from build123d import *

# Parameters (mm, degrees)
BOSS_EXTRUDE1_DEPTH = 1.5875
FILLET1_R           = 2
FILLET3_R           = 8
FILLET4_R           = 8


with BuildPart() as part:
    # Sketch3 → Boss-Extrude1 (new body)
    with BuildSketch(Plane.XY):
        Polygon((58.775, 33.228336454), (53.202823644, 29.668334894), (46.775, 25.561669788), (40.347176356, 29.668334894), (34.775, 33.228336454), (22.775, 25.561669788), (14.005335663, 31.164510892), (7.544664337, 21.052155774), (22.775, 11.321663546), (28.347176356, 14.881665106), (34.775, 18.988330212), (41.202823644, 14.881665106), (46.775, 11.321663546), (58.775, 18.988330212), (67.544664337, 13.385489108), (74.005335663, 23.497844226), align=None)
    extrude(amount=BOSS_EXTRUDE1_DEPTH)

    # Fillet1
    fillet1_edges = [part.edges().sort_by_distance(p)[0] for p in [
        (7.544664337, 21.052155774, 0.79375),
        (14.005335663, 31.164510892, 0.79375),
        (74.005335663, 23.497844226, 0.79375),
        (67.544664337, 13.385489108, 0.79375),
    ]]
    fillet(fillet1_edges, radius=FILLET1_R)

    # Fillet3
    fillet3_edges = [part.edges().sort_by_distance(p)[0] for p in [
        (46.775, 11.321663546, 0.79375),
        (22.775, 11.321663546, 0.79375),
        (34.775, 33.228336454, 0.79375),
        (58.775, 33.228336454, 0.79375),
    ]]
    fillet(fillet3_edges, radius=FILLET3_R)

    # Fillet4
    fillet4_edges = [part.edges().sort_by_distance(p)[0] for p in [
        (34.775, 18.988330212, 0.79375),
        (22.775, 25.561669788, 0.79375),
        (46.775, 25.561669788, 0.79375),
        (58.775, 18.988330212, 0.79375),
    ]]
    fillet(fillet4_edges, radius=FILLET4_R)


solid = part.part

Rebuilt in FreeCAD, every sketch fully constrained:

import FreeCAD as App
import Part
import Sketcher


def edges_at(feature, points):
    """Names of the edges that pass closest to the given points."""
    edges = feature.Shape.Edges
    near = lambda p: min(range(len(edges)), key=lambda i: edges[i].distToShape(Part.Vertex(*p))[0])
    return sorted({f"Edge{near(p) + 1}" for p in points})


def add_polygon(sketch, points):
    """Adds a closed chain of lines whose ends are joined by coincident constraints."""
    first, n = sketch.GeometryCount, len(points)
    for a, b in zip(points, points[1:] + points[:1]):
        sketch.addGeometry(Part.LineSegment(App.Vector(*a, 0), App.Vector(*b, 0)), False)
    for i in range(n):
        sketch.addConstraint(Sketcher.Constraint("Coincident", first + i, 2, first + (i + 1) % n, 1))

doc = App.newDocument("Part")
body = doc.addObject("PartDesign::Body", "Body")

sketch1 = doc.addObject("Sketcher::SketchObject", "Sketch")
body.addObject(sketch1)
sketch1.AttachmentSupport = (doc.XY_Plane, [""])
sketch1.MapMode = "FlatFace"
add_polygon(sketch1, [(59, 33), (53, 30), (47, 26), (40, 30), (35, 33), (23, 26), (14, 31), (8, 21), (23, 11), (28, 15), (35, 19), (41, 15), (47, 11), (59, 19), (68, 13), (74, 23)])
sketch1.addConstraint(Sketcher.Constraint("Parallel", 0, 1))
sketch1.addConstraint(Sketcher.Constraint("Parallel", 2, 3))
sketch1.addConstraint(Sketcher.Constraint("Parallel", 1, 4))
sketch1.addConstraint(Sketcher.Constraint("Parallel", 3, 5))
sketch1.addConstraint(Sketcher.Constraint("Perpendicular", 5, 6))
sketch1.addConstraint(Sketcher.Constraint("Perpendicular", 6, 7))
sketch1.addConstraint(Sketcher.Constraint("Parallel", 4, 8))
sketch1.addConstraint(Sketcher.Constraint("Parallel", 8, 9))
sketch1.addConstraint(Sketcher.Constraint("Parallel", 7, 10))
sketch1.addConstraint(Sketcher.Constraint("Parallel", 10, 11))
sketch1.addConstraint(Sketcher.Constraint("Parallel", 9, 12))
sketch1.addConstraint(Sketcher.Constraint("Parallel", 11, 13))
sketch1.addConstraint(Sketcher.Constraint("Perpendicular", 13, 14))
sketch1.addConstraint(Sketcher.Constraint("Perpendicular", 14, 15))
sketch1.addConstraint(Sketcher.Constraint("Horizontal", 0, 2, 2, 2))
sketch1.addConstraint(Sketcher.Constraint("Horizontal", 1, 2, 4, 2))
sketch1.addConstraint(Sketcher.Constraint("Horizontal", 8, 2, 10, 2))
sketch1.addConstraint(Sketcher.Constraint("Horizontal", 7, 2, 11, 2))
sketch1.addConstraint(Sketcher.Constraint("Horizontal", 9, 2, 12, 2))
sketch1.addConstraint(Sketcher.Constraint("Horizontal", 3, 2, 15, 2))
sketch1.addConstraint(Sketcher.Constraint("Vertical", 4, 2, 7, 2))
sketch1.addConstraint(Sketcher.Constraint("Vertical", 3, 2, 9, 2))
sketch1.addConstraint(Sketcher.Constraint("Equal", 1, 2))
sketch1.addConstraint(Sketcher.Constraint("Equal", 3, 8))
sketch1.addConstraint(Sketcher.Constraint("Equal", 5, 13))
sketch1.addConstraint(Sketcher.Constraint("Distance", 6, 12.0))
sketch1.addConstraint(Sketcher.Constraint("DistanceX", 3, 2, 1, 2, 12.0))
sketch1.addConstraint(Sketcher.Constraint("DistanceY", 2, 2, 3, 2, 3.560002))
sketch1.addConstraint(Sketcher.Constraint("DistanceX", -1, 1, 1, 2, 46.775))
sketch1.addConstraint(Sketcher.Constraint("Distance", 0, 6.612319))
sketch1.addConstraint(Sketcher.Constraint("Distance", 7, 18.07334))
sketch1.addConstraint(Sketcher.Constraint("DistanceY", -1, 1, 1, 2, 25.56167))
pad1 = doc.addObject("PartDesign::Pad", "Pad")
body.addObject(pad1)
pad1.Profile = sketch1
pad1.Length = 1.5875
doc.recompute()

fillet = doc.addObject("PartDesign::Fillet", "Fillet")
body.addObject(fillet)
fillet.Base = (pad1, edges_at(pad1, [
    (7.545, 21.052, 0.794),
    (14.005, 31.165, 0.794),
    (74.005, 23.498, 0.794),
    (67.545, 13.385, 0.794),
]))
fillet.Radius = 2
doc.recompute()

fillet2 = doc.addObject("PartDesign::Fillet", "Fillet001")
body.addObject(fillet2)
fillet2.Base = (fillet, edges_at(fillet, [
    (46.775, 11.322, 0.794),
    (22.775, 11.322, 0.794),
    (34.775, 33.228, 0.794),
    (58.775, 33.228, 0.794),
]))
fillet2.Radius = 8
doc.recompute()

fillet3 = doc.addObject("PartDesign::Fillet", "Fillet002")
body.addObject(fillet3)
fillet3.Base = (fillet2, edges_at(fillet2, [
    (34.775, 18.988, 0.794),
    (22.775, 25.562, 0.794),
    (46.775, 25.562, 0.794),
    (58.775, 18.988, 0.794),
]))
fillet3.Radius = 8

doc.recompute()
